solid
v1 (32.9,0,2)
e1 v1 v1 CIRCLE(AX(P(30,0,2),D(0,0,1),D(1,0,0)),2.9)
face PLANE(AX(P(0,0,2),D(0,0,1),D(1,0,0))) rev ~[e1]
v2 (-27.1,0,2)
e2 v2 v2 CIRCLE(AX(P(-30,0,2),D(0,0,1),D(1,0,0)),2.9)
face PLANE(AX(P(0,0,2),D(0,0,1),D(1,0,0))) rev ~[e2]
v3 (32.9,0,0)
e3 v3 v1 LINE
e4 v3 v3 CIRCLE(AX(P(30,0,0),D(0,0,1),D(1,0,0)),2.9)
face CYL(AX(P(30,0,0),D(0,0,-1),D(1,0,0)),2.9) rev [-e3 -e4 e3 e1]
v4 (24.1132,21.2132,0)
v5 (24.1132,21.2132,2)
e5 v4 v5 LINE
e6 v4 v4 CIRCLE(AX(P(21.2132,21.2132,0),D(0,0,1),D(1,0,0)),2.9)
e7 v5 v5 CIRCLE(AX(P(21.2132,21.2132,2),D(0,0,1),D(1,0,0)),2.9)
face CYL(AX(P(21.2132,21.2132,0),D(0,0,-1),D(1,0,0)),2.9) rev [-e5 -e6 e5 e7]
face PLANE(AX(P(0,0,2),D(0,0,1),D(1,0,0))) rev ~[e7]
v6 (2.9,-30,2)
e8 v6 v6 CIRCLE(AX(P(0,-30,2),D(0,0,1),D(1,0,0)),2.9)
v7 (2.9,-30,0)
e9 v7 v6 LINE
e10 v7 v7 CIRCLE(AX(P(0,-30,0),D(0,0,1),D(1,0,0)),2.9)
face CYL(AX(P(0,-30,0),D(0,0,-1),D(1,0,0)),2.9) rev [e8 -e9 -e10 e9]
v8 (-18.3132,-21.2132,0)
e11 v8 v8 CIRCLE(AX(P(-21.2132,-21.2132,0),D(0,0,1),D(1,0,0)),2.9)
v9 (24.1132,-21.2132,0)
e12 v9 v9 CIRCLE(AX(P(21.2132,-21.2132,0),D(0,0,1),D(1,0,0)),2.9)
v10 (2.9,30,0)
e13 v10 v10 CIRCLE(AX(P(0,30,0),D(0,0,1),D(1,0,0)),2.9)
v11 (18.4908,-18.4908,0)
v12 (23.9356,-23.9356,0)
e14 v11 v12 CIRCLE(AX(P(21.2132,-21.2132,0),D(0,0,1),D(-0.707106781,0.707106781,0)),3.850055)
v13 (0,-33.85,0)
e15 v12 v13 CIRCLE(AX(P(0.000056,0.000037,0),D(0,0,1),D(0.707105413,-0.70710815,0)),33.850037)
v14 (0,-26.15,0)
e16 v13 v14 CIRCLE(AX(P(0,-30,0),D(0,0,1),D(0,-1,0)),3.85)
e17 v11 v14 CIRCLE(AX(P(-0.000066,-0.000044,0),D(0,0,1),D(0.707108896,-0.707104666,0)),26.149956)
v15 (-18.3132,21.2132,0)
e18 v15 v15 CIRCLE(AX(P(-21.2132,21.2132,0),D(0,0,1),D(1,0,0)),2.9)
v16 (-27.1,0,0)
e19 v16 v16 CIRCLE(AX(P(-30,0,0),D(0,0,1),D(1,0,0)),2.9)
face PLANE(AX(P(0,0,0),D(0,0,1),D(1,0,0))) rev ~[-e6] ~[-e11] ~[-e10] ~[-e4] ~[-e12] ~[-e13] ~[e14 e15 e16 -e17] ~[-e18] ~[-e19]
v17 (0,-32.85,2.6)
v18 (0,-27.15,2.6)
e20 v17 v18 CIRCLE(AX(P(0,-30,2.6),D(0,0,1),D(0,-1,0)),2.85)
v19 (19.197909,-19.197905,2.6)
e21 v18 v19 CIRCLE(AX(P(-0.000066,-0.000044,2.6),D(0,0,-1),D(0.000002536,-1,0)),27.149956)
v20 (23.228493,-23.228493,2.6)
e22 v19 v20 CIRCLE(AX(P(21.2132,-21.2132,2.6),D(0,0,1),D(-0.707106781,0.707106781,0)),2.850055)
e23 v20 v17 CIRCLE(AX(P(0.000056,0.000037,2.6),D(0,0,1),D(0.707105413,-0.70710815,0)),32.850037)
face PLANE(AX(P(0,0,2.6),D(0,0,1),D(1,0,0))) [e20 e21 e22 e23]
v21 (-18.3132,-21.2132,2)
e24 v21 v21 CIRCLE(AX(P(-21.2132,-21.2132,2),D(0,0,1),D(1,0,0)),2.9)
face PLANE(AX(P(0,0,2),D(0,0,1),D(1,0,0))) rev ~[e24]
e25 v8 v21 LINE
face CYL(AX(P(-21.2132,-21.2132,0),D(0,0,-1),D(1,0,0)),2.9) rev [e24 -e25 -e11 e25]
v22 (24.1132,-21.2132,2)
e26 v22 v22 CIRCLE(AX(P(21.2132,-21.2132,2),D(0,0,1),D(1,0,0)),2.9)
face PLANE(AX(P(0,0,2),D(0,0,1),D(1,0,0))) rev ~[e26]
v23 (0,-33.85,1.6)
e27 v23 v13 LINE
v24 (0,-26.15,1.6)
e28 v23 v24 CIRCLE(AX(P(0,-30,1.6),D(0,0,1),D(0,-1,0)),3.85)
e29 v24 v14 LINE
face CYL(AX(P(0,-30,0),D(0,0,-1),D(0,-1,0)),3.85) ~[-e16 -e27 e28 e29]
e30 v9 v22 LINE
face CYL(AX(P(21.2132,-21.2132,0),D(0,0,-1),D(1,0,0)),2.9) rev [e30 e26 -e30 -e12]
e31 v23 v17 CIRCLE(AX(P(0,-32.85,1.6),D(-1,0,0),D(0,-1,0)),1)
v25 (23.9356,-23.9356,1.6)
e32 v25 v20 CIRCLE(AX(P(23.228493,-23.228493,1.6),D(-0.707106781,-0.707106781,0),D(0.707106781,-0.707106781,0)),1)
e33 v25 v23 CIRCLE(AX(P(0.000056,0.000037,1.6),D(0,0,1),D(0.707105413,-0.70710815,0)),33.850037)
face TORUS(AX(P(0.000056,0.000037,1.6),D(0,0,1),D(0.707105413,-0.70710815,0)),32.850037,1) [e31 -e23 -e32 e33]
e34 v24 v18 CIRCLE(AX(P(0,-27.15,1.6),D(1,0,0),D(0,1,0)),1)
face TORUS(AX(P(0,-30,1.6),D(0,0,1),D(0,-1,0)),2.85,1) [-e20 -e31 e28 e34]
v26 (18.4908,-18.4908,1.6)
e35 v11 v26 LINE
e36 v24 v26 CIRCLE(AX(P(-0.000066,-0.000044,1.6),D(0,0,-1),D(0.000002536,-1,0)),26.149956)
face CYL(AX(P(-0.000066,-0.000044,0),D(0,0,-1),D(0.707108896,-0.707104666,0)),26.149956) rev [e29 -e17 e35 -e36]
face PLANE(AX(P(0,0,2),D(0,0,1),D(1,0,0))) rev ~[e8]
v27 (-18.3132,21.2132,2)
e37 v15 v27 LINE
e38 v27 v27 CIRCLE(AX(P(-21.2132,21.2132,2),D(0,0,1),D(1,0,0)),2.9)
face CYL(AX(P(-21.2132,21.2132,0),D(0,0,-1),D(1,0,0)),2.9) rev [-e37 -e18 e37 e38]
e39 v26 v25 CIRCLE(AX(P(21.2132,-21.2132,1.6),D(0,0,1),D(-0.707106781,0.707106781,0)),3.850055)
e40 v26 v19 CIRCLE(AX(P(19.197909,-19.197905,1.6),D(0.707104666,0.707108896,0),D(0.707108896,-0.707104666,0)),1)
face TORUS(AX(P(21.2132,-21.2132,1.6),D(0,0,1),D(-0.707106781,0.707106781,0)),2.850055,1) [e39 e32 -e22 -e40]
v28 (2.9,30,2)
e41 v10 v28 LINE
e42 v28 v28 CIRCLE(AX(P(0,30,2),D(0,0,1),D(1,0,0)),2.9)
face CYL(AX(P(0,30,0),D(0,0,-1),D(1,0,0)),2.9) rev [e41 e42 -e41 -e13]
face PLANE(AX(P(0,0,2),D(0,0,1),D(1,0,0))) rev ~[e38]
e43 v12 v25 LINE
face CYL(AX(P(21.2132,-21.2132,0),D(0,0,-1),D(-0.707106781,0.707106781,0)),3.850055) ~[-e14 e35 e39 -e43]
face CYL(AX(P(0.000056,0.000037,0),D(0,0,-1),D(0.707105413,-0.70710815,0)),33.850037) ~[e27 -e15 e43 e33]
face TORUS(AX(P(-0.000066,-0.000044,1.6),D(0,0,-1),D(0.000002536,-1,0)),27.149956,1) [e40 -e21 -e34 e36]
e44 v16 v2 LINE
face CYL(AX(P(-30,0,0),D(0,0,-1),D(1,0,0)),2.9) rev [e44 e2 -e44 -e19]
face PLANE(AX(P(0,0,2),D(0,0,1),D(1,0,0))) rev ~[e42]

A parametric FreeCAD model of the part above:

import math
import FreeCAD as App
import Part
import Sketcher

V = App.Vector
Q = App.Units.Quantity


def edges_at(feature, points):
    """Names of the edges that pass closest to the given points."""
    edges = feature.Shape.Edges
    near = lambda p: min(range(len(edges)), key=lambda i: edges[i].distToShape(Part.Vertex(*p))[0])
    return sorted({f"Edge{near(p) + 1}" for p in points})

doc = App.newDocument("Part")
body = doc.addObject("PartDesign::Body", "Body")

# Sketch on XY plane
sketch1 = body.newObject("Sketcher::SketchObject", "Sketch")
sketch1.AttachmentSupport = (doc.getObject("XY_Plane"), [""])
sketch1.MapMode = "FlatFace"
sketch1.addGeometry(Part.ArcOfCircle(Part.Circle(V(0, 0, 0), V(0, 0, 1), 26.1), math.radians(-45), math.radians(270)), False)
sketch1.addGeometry(Part.ArcOfCircle(Part.Circle(V(21.2, -21.2, 0), V(0, 0, 1), 3.9), math.radians(135), math.radians(315)), False)
sketch1.addGeometry(Part.ArcOfCircle(Part.Circle(V(0, 0, 0), V(0, 0, 1), 33.9), math.radians(-45), math.radians(270)), False)
sketch1.addGeometry(Part.ArcOfCircle(Part.Circle(V(0, -30, 0), V(0, 0, 1), 3.9), math.radians(-90), math.radians(90)), False)
sketch1.addGeometry(Part.Circle(V(-21.2, -21.2, 0), V(0, 0, 1), 2.9), False)
sketch1.addGeometry(Part.Circle(V(0, -30, 0), V(0, 0, 1), 2.9), False)
sketch1.addGeometry(Part.Circle(V(-30, 0, 0), V(0, 0, 1), 2.9), False)
sketch1.addGeometry(Part.Circle(V(21.2, -21.2, 0), V(0, 0, 1), 2.9), False)
sketch1.addGeometry(Part.Circle(V(30, 0, 0), V(0, 0, 1), 2.9), False)
sketch1.addGeometry(Part.Circle(V(-21.2, 21.2, 0), V(0, 0, 1), 2.9), False)
sketch1.addGeometry(Part.Circle(V(0, 30, 0), V(0, 0, 1), 2.9), False)
sketch1.addGeometry(Part.Circle(V(21.2, 21.2, 0), V(0, 0, 1), 2.9), False)
sketch1.addConstraint(Sketcher.Constraint("Tangent", 0, 1, 1, 1))
sketch1.addConstraint(Sketcher.Constraint("Tangent", 1, 2, 2, 1))
sketch1.addConstraint(Sketcher.Constraint("Tangent", 2, 2, 3, 1))
sketch1.addConstraint(Sketcher.Constraint("Tangent", 3, 2, 0, 2))
sketch1.addConstraint(Sketcher.Constraint("Coincident", 0, 3, -1, 1))
sketch1.addConstraint(Sketcher.Constraint("Coincident", 2, 3, -1, 1))
sketch1.addConstraint(Sketcher.Constraint("Coincident", 5, 3, 3, 3))
sketch1.addConstraint(Sketcher.Constraint("Coincident", 7, 3, 1, 3))
sketch1.addConstraint(Sketcher.Constraint("Equal", 4, 5))
sketch1.addConstraint(Sketcher.Constraint("Equal", 5, 6))
sketch1.addConstraint(Sketcher.Constraint("Equal", 6, 7))
sketch1.addConstraint(Sketcher.Constraint("Equal", 7, 8))
sketch1.addConstraint(Sketcher.Constraint("Equal", 8, 9))
sketch1.addConstraint(Sketcher.Constraint("Equal", 9, 10))
sketch1.addConstraint(Sketcher.Constraint("Equal", 10, 11))
sketch1.addConstraint(Sketcher.Constraint("Symmetric", 6, 3, 8, 3, -1, 1))
sketch1.addConstraint(Sketcher.Constraint("Symmetric", 1, 3, 9, 3, -1, 1))
sketch1.addConstraint(Sketcher.Constraint("Symmetric", 3, 3, 10, 3, -1, 1))
sketch1.addConstraint(Sketcher.Constraint("Symmetric", 4, 3, 11, 3, -1, 1))
sketch1.addConstraint(Sketcher.Constraint("Symmetric", 1, 3, 4, 3, -2))
sketch1.addConstraint(Sketcher.Constraint("PointOnObject", 3, 3, -2))
sketch1.addConstraint(Sketcher.Constraint("PointOnObject", 6, 3, -1))
sketch1.addConstraint(Sketcher.Constraint("Diameter", 4, Q("5.8 mm")))
sketch1.addConstraint(Sketcher.Constraint("Radius", 0, Q("26.15 mm")))
sketch1.addConstraint(Sketcher.Constraint("Radius", 1, Q("3.85 mm")))
sketch1.addConstraint(Sketcher.Constraint("DistanceX", 6, 3, -1, 1, Q("30 mm")))
sketch1.addConstraint(Sketcher.Constraint("DistanceX", -1, 1, 1, 3, Q("21.2132 mm")))
pad1 = body.newObject("PartDesign::Pad", "Pad")
pad1.Profile = sketch1
pad1.Length = 2

# Sketch on XY plane
sketch2 = body.newObject("Sketcher::SketchObject", "Sketch001")
sketch2.AttachmentSupport = (doc.getObject("XY_Plane"), [""])
sketch2.MapMode = "FlatFace"
sketch2.AttachmentOffset = App.Placement(V(0, 0, 2), App.Rotation())
sketch2.addGeometry(Part.ArcOfCircle(Part.Circle(V(21.2, -21.2, 0), V(0, 0, 1), 3.9), math.radians(135), math.radians(315)), False)
sketch2.addGeometry(Part.ArcOfCircle(Part.Circle(V(0, 0, 0), V(0, 0, 1), 33.9), math.radians(-45), math.radians(270)), False)
sketch2.addGeometry(Part.ArcOfCircle(Part.Circle(V(0, -30, 0), V(0, 0, 1), 3.9), math.radians(-90), math.radians(90)), False)
sketch2.addGeometry(Part.ArcOfCircle(Part.Circle(V(0, 0, 0), V(0, 0, 1), 26.1), math.radians(-45), math.radians(270)), False)
sketch2.addConstraint(Sketcher.Constraint("Tangent", 0, 2, 1, 1))
sketch2.addConstraint(Sketcher.Constraint("Tangent", 1, 2, 2, 1))
sketch2.addConstraint(Sketcher.Constraint("Tangent", 2, 2, 3, 2))
sketch2.addConstraint(Sketcher.Constraint("Tangent", 3, 1, 0, 1))
sketch2.addConstraint(Sketcher.Constraint("Coincident", 1, 3, -1, 1))
sketch2.addConstraint(Sketcher.Constraint("Coincident", 3, 3, -1, 1))
sketch2.addConstraint(Sketcher.Constraint("PointOnObject", 2, 3, -2))
sketch2.addConstraint(Sketcher.Constraint("Radius", 0, Q("3.85 mm")))
sketch2.addConstraint(Sketcher.Constraint("Radius", 1, Q("33.85 mm")))
sketch2.addConstraint(Sketcher.Constraint("DistanceX", -1, 1, 0, 3, Q("21.2132 mm")))
pad2 = body.newObject("PartDesign::Pad", "Pad001")
pad2.Profile = sketch2
pad2.Length = 0.6
doc.recompute()

fillet = body.newObject("PartDesign::Fillet", "Fillet")
fillet.Base = (pad2, edges_at(pad2, [
    (3.85, -30, 2.6),
    (-10.007, 24.159, 2.6),
    (18.491, -23.936, 2.6),
    (-12.954, 31.273, 2.6),
]))
fillet.Radius = 1

doc.recompute()
